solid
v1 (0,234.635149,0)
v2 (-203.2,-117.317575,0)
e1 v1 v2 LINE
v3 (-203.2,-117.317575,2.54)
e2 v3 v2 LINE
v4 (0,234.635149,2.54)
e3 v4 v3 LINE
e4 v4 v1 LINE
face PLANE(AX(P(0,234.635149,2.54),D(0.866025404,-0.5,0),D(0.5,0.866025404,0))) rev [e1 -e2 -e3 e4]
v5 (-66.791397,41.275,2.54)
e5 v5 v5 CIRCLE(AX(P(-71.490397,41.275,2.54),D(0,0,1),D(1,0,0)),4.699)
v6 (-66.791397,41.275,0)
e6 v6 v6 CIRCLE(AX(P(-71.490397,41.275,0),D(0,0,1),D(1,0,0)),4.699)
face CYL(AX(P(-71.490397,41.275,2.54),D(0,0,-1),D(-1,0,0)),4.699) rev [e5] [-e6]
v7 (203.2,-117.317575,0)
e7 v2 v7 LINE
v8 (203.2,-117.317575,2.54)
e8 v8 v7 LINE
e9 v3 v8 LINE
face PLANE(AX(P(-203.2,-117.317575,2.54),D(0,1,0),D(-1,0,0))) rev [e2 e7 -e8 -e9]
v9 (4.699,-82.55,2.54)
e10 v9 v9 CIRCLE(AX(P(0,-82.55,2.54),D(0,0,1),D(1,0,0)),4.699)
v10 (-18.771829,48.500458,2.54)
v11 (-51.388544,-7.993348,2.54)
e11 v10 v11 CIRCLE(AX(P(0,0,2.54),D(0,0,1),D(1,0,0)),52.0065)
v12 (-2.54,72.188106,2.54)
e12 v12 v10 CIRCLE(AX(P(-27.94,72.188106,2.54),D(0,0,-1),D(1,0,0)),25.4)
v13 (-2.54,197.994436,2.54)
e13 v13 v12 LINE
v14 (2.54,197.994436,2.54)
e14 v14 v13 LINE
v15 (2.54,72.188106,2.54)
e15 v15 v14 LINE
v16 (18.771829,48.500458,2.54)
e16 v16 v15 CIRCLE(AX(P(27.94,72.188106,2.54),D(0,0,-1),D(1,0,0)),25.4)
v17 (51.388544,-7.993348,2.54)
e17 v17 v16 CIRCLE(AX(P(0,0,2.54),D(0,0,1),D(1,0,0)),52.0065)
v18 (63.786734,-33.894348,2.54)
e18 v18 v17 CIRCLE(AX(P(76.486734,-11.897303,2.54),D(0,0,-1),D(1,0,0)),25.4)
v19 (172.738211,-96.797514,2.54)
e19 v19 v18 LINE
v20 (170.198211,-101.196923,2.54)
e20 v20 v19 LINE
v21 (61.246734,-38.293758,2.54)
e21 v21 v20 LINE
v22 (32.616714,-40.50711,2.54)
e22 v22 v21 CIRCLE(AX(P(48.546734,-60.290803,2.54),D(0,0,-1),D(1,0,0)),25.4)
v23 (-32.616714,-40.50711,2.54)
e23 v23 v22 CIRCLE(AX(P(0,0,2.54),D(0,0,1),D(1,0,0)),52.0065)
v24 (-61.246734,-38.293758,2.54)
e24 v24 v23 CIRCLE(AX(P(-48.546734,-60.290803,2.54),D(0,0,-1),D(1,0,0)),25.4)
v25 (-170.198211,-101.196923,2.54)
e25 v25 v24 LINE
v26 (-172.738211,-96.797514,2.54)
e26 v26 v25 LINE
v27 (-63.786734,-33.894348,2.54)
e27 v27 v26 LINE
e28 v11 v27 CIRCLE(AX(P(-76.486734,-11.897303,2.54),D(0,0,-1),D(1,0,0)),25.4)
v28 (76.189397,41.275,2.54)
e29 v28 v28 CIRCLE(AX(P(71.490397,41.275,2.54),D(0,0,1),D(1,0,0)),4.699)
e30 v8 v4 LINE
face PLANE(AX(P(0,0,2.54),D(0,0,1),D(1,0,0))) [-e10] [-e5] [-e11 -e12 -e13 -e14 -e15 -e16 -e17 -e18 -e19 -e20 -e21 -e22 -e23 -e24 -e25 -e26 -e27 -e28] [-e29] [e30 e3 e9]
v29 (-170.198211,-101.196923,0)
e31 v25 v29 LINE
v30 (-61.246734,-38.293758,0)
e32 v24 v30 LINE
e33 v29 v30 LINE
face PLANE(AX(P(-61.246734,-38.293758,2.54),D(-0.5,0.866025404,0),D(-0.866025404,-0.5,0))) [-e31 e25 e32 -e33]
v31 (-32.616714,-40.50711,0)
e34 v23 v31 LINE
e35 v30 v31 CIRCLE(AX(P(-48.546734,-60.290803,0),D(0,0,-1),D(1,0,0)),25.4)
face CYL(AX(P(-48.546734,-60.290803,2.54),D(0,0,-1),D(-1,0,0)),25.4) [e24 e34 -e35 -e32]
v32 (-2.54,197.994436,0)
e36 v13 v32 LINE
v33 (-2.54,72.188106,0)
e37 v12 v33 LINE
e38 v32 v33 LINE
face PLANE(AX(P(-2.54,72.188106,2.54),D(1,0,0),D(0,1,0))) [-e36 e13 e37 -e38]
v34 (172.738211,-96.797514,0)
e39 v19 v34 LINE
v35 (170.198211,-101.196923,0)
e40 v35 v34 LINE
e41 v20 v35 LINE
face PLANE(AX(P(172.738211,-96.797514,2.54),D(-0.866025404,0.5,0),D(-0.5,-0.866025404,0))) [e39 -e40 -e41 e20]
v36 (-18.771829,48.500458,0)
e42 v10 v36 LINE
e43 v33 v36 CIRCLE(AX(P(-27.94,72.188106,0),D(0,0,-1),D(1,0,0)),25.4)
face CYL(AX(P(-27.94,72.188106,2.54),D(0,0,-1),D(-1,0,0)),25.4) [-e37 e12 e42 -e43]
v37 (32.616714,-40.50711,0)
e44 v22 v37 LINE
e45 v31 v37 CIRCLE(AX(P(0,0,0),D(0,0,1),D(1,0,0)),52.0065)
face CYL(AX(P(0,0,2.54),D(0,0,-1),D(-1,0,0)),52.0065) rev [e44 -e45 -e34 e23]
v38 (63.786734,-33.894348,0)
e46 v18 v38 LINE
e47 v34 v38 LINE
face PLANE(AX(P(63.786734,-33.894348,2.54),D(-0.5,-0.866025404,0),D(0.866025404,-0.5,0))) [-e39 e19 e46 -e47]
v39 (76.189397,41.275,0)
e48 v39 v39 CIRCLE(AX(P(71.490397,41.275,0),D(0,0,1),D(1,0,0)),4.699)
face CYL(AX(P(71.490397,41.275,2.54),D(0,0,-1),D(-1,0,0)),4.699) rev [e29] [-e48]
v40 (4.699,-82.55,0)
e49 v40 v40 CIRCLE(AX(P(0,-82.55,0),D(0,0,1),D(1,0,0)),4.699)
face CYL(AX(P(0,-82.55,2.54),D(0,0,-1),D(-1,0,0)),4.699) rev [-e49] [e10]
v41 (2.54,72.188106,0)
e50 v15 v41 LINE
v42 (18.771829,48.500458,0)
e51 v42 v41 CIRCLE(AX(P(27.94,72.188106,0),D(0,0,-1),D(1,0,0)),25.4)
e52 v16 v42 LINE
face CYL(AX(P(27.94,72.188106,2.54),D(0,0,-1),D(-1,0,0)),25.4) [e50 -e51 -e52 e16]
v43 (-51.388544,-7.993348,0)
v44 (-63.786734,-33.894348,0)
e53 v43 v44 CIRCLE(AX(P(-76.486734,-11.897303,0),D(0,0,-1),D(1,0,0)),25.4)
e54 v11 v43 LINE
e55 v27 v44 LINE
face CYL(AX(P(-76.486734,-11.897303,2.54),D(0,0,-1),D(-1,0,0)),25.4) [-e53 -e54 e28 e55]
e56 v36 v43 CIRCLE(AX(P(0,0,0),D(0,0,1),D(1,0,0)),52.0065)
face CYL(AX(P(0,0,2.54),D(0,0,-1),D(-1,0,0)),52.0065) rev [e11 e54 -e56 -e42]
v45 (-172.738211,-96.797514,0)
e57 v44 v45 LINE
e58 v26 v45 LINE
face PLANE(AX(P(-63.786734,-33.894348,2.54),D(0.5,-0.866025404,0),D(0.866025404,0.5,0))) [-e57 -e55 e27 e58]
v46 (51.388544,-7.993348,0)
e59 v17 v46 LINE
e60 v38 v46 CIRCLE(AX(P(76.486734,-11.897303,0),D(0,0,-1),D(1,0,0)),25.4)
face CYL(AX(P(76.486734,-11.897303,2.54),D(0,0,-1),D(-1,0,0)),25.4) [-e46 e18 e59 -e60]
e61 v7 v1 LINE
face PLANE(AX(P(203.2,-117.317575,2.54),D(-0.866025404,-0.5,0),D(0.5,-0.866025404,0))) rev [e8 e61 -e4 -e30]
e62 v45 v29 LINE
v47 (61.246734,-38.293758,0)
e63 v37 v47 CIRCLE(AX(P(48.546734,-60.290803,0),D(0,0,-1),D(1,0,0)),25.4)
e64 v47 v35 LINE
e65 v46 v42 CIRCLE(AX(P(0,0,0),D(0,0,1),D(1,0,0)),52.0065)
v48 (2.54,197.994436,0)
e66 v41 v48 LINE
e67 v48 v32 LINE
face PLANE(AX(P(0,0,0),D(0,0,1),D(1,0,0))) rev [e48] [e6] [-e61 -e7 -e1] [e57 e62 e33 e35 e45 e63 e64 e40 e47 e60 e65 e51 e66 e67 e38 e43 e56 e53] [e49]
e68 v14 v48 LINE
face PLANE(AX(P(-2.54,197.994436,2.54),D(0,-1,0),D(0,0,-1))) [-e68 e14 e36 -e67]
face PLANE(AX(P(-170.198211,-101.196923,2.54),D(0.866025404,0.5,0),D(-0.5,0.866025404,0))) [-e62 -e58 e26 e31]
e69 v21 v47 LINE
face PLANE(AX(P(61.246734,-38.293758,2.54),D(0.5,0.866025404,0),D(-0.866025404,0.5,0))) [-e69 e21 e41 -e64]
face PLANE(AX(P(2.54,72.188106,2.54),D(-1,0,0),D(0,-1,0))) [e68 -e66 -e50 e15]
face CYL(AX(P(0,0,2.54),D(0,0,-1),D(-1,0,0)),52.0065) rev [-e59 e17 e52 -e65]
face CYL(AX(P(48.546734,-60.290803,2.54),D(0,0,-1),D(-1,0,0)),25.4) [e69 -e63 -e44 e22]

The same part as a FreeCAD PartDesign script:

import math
import FreeCAD as App
import Part
import Sketcher
from FreeCAD import Vector
Q = App.Units.Quantity

doc = App.newDocument("Part")
body = doc.addObject("PartDesign::Body", "Body")

# Sketch on XY plane
sketch1 = body.newObject("Sketcher::SketchObject", "Sketch")
sketch1.AttachmentSupport = (doc.getObject("XY_Plane"), [""])
sketch1.MapMode = "FlatFace"
sketch1.addGeometry(Part.LineSegment(Vector(0, 234.6, 0), Vector(-203.2, -117.3, 0)), False)
sketch1.addGeometry(Part.LineSegment(Vector(-203.2, -117.3, 0), Vector(203.2, -117.3, 0)), False)
sketch1.addGeometry(Part.LineSegment(Vector(203.2, -117.3, 0), Vector(0, 234.6, 0)), False)
sketch1.addGeometry(Part.Circle(Vector(0, -82.5, 0), Vector(0, 0, 1), 4.7), False)
sketch1.addGeometry(Part.Circle(Vector(-71.5, 41.3, 0), Vector(0, 0, 1), 4.7), False)
sketch1.addGeometry(Part.Circle(Vector(71.5, 41.3, 0), Vector(0, 0, 1), 4.7), False)
sketch1.addGeometry(Part.ArcOfCircle(Part.Circle(Vector(-27.9, 72.2, 0), Vector(0, 0, 1), 25.4), math.radians(-69), math.radians(0)), False)
sketch1.addGeometry(Part.LineSegment(Vector(-2.5, 72.2, 0), Vector(-2.5, 198, 0)), False)
sketch1.addGeometry(Part.LineSegment(Vector(-2.5, 198, 0), Vector(2.5, 198, 0)), False)
sketch1.addGeometry(Part.LineSegment(Vector(2.5, 198, 0), Vector(2.5, 72.2, 0)), False)
sketch1.addGeometry(Part.ArcOfCircle(Part.Circle(Vector(27.9, 72.2, 0), Vector(0, 0, 1), 25.4), math.radians(180), math.radians(249)), False)
sketch1.addGeometry(Part.ArcOfCircle(Part.Circle(Vector(0, 0, 0), Vector(0, 0, 1), 52), math.radians(-9), math.radians(69)), False)
sketch1.addGeometry(Part.ArcOfCircle(Part.Circle(Vector(76.5, -11.9, 0), Vector(0, 0, 1), 25.4), math.radians(171), math.radians(240)), False)
sketch1.addGeometry(Part.LineSegment(Vector(63.8, -33.9, 0), Vector(172.7, -96.8, 0)), False)
sketch1.addGeometry(Part.LineSegment(Vector(172.7, -96.8, 0), Vector(170.2, -101.2, 0)), False)
sketch1.addGeometry(Part.LineSegment(Vector(170.2, -101.2, 0), Vector(61.2, -38.3, 0)), False)
sketch1.addGeometry(Part.ArcOfCircle(Part.Circle(Vector(48.5, -60.3, 0), Vector(0, 0, 1), 25.4), math.radians(60), math.radians(129)), False)
sketch1.addGeometry(Part.ArcOfCircle(Part.Circle(Vector(0, 0, 0), Vector(0, 0, 1), 52), math.radians(-129), math.radians(-51)), False)
sketch1.addGeometry(Part.ArcOfCircle(Part.Circle(Vector(-48.5, -60.3, 0), Vector(0, 0, 1), 25.4), math.radians(51), math.radians(120)), False)
sketch1.addGeometry(Part.LineSegment(Vector(-61.2, -38.3, 0), Vector(-170.2, -101.2, 0)), False)
sketch1.addGeometry(Part.LineSegment(Vector(-170.2, -101.2, 0), Vector(-172.7, -96.8, 0)), False)
sketch1.addGeometry(Part.LineSegment(Vector(-172.7, -96.8, 0), Vector(-63.8, -33.9, 0)), False)
sketch1.addGeometry(Part.ArcOfCircle(Part.Circle(Vector(-76.5, -11.9, 0), Vector(0, 0, 1), 25.4), math.radians(-60), math.radians(9)), False)
sketch1.addGeometry(Part.ArcOfCircle(Part.Circle(Vector(0, 0, 0), Vector(0, 0, 1), 52), math.radians(111), math.radians(189)), False)
sketch1.addConstraint(Sketcher.Constraint("Coincident", 0, 2, 1, 1))
sketch1.addConstraint(Sketcher.Constraint("Coincident", 1, 2, 2, 1))
sketch1.addConstraint(Sketcher.Constraint("Coincident", 2, 2, 0, 1))
sketch1.addConstraint(Sketcher.Constraint("Tangent", 6, 2, 7, 1))
sketch1.addConstraint(Sketcher.Constraint("Coincident", 7, 2, 8, 1))
sketch1.addConstraint(Sketcher.Constraint("Coincident", 8, 2, 9, 1))
sketch1.addConstraint(Sketcher.Constraint("Tangent", 9, 2, 10, 1))
sketch1.addConstraint(Sketcher.Constraint("Tangent", 10, 2, 11, 2))
sketch1.addConstraint(Sketcher.Constraint("Tangent", 11, 1, 12, 1))
sketch1.addConstraint(Sketcher.Constraint("Tangent", 12, 2, 13, 1))
sketch1.addConstraint(Sketcher.Constraint("Coincident", 13, 2, 14, 1))
sketch1.addConstraint(Sketcher.Constraint("Coincident", 14, 2, 15, 1))
sketch1.addConstraint(Sketcher.Constraint("Tangent", 15, 2, 16, 1))
sketch1.addConstraint(Sketcher.Constraint("Tangent", 16, 2, 17, 2))
sketch1.addConstraint(Sketcher.Constraint("Tangent", 17, 1, 18, 1))
sketch1.addConstraint(Sketcher.Constraint("Tangent", 18, 2, 19, 1))
sketch1.addConstraint(Sketcher.Constraint("Coincident", 19, 2, 20, 1))
sketch1.addConstraint(Sketcher.Constraint("Coincident", 20, 2, 21, 1))
sketch1.addConstraint(Sketcher.Constraint("Tangent", 21, 2, 22, 1))
sketch1.addConstraint(Sketcher.Constraint("Tangent", 22, 2, 23, 2))
sketch1.addConstraint(Sketcher.Constraint("Tangent", 23, 1, 6, 1))
sketch1.addConstraint(Sketcher.Constraint("Horizontal", 1))
sketch1.addConstraint(Sketcher.Constraint("Vertical", 7))
sketch1.addConstraint(Sketcher.Constraint("Horizontal", 8))
sketch1.addConstraint(Sketcher.Constraint("Vertical", 9))
sketch1.addConstraint(Sketcher.Constraint("Coincident", 11, 3, -1, 1))
sketch1.addConstraint(Sketcher.Constraint("Coincident", 17, 3, -1, 1))
sketch1.addConstraint(Sketcher.Constraint("Coincident", 23, 3, -1, 1))
sketch1.addConstraint(Sketcher.Constraint("Equal", 3, 4))
sketch1.addConstraint(Sketcher.Constraint("Equal", 4, 5))
sketch1.addConstraint(Sketcher.Constraint("Equal", 6, 10))
sketch1.addConstraint(Sketcher.Constraint("Equal", 10, 12))
sketch1.addConstraint(Sketcher.Constraint("Equal", 12, 16))
sketch1.addConstraint(Sketcher.Constraint("Equal", 11, 17))
sketch1.addConstraint(Sketcher.Constraint("Equal", 16, 18))
sketch1.addConstraint(Sketcher.Constraint("Equal", 18, 22))
sketch1.addConstraint(Sketcher.Constraint("Equal", 17, 23))
sketch1.addConstraint(Sketcher.Constraint("Symmetric", 4, 3, 5, 3, -2))
sketch1.addConstraint(Sketcher.Constraint("Symmetric", 15, 2, 18, 2, -2))
sketch1.addConstraint(Sketcher.Constraint("Symmetric", 13, 2, 20, 2, -2))
sketch1.addConstraint(Sketcher.Constraint("PointOnObject", 3, 3, -2))
sketch1.addConstraint(Sketcher.Constraint("PointOnObject", 2, 2, -2))
sketch1.addConstraint(Sketcher.Constraint("Perpendicular", 0, 13))
sketch1.addConstraint(Sketcher.Constraint("Perpendicular", 13, 14))
sketch1.addConstraint(Sketcher.Constraint("Perpendicular", 14, 15))
sketch1.addConstraint(Sketcher.Constraint("Perpendicular", 2, 19))
sketch1.addConstraint(Sketcher.Constraint("Perpendicular", 19, 20))
sketch1.addConstraint(Sketcher.Constraint("Perpendicular", 20, 21))
sketch1.addConstraint(Sketcher.Constraint("Horizontal", 6, 3, 10, 3))
sketch1.addConstraint(Sketcher.Constraint("Equal", 13, 15))
sketch1.addConstraint(Sketcher.Constraint("Radius", 6, Q("1 in")))
sketch1.addConstraint(Sketcher.Constraint("Diameter", 3, Q("0.37 in")))
sketch1.addConstraint(Sketcher.Constraint("DistanceX", 1, 1, 1, 2, Q("16 in")))
sketch1.addConstraint(Sketcher.Constraint("Distance", 0, Q("16 in")))
sketch1.addConstraint(Sketcher.Constraint("DistanceX", 8, 1, 8, 2, Q("0.2 in")))
sketch1.addConstraint(Sketcher.Constraint("Distance", 14, Q("0.2 in")))
sketch1.addConstraint(Sketcher.Constraint("Radius", 11, Q("2.0475 in")))
sketch1.addConstraint(Sketcher.Constraint("DistanceY", 3, 3, -1, 1, Q("3.25 in")))
sketch1.addConstraint(Sketcher.Constraint("DistanceY", -1, 1, 4, 3, Q("1.625 in")))
sketch1.addConstraint(Sketcher.Constraint("DistanceY", 7, 1, 7, 2, 125.80633))
sketch1.addConstraint(Sketcher.Constraint("Distance", 13, 125.80633))
sketch1.addConstraint(Sketcher.Constraint("DistanceY", -1, 1, 2, 2, 234.635149))
sketch1.addConstraint(Sketcher.Constraint("DistanceX", 4, 3, -1, 1, 71.490397))
pad1 = body.newObject("PartDesign::Pad", "Pad")
pad1.Profile = sketch1
pad1.Length = Q("0.1 in")

doc.recompute()
